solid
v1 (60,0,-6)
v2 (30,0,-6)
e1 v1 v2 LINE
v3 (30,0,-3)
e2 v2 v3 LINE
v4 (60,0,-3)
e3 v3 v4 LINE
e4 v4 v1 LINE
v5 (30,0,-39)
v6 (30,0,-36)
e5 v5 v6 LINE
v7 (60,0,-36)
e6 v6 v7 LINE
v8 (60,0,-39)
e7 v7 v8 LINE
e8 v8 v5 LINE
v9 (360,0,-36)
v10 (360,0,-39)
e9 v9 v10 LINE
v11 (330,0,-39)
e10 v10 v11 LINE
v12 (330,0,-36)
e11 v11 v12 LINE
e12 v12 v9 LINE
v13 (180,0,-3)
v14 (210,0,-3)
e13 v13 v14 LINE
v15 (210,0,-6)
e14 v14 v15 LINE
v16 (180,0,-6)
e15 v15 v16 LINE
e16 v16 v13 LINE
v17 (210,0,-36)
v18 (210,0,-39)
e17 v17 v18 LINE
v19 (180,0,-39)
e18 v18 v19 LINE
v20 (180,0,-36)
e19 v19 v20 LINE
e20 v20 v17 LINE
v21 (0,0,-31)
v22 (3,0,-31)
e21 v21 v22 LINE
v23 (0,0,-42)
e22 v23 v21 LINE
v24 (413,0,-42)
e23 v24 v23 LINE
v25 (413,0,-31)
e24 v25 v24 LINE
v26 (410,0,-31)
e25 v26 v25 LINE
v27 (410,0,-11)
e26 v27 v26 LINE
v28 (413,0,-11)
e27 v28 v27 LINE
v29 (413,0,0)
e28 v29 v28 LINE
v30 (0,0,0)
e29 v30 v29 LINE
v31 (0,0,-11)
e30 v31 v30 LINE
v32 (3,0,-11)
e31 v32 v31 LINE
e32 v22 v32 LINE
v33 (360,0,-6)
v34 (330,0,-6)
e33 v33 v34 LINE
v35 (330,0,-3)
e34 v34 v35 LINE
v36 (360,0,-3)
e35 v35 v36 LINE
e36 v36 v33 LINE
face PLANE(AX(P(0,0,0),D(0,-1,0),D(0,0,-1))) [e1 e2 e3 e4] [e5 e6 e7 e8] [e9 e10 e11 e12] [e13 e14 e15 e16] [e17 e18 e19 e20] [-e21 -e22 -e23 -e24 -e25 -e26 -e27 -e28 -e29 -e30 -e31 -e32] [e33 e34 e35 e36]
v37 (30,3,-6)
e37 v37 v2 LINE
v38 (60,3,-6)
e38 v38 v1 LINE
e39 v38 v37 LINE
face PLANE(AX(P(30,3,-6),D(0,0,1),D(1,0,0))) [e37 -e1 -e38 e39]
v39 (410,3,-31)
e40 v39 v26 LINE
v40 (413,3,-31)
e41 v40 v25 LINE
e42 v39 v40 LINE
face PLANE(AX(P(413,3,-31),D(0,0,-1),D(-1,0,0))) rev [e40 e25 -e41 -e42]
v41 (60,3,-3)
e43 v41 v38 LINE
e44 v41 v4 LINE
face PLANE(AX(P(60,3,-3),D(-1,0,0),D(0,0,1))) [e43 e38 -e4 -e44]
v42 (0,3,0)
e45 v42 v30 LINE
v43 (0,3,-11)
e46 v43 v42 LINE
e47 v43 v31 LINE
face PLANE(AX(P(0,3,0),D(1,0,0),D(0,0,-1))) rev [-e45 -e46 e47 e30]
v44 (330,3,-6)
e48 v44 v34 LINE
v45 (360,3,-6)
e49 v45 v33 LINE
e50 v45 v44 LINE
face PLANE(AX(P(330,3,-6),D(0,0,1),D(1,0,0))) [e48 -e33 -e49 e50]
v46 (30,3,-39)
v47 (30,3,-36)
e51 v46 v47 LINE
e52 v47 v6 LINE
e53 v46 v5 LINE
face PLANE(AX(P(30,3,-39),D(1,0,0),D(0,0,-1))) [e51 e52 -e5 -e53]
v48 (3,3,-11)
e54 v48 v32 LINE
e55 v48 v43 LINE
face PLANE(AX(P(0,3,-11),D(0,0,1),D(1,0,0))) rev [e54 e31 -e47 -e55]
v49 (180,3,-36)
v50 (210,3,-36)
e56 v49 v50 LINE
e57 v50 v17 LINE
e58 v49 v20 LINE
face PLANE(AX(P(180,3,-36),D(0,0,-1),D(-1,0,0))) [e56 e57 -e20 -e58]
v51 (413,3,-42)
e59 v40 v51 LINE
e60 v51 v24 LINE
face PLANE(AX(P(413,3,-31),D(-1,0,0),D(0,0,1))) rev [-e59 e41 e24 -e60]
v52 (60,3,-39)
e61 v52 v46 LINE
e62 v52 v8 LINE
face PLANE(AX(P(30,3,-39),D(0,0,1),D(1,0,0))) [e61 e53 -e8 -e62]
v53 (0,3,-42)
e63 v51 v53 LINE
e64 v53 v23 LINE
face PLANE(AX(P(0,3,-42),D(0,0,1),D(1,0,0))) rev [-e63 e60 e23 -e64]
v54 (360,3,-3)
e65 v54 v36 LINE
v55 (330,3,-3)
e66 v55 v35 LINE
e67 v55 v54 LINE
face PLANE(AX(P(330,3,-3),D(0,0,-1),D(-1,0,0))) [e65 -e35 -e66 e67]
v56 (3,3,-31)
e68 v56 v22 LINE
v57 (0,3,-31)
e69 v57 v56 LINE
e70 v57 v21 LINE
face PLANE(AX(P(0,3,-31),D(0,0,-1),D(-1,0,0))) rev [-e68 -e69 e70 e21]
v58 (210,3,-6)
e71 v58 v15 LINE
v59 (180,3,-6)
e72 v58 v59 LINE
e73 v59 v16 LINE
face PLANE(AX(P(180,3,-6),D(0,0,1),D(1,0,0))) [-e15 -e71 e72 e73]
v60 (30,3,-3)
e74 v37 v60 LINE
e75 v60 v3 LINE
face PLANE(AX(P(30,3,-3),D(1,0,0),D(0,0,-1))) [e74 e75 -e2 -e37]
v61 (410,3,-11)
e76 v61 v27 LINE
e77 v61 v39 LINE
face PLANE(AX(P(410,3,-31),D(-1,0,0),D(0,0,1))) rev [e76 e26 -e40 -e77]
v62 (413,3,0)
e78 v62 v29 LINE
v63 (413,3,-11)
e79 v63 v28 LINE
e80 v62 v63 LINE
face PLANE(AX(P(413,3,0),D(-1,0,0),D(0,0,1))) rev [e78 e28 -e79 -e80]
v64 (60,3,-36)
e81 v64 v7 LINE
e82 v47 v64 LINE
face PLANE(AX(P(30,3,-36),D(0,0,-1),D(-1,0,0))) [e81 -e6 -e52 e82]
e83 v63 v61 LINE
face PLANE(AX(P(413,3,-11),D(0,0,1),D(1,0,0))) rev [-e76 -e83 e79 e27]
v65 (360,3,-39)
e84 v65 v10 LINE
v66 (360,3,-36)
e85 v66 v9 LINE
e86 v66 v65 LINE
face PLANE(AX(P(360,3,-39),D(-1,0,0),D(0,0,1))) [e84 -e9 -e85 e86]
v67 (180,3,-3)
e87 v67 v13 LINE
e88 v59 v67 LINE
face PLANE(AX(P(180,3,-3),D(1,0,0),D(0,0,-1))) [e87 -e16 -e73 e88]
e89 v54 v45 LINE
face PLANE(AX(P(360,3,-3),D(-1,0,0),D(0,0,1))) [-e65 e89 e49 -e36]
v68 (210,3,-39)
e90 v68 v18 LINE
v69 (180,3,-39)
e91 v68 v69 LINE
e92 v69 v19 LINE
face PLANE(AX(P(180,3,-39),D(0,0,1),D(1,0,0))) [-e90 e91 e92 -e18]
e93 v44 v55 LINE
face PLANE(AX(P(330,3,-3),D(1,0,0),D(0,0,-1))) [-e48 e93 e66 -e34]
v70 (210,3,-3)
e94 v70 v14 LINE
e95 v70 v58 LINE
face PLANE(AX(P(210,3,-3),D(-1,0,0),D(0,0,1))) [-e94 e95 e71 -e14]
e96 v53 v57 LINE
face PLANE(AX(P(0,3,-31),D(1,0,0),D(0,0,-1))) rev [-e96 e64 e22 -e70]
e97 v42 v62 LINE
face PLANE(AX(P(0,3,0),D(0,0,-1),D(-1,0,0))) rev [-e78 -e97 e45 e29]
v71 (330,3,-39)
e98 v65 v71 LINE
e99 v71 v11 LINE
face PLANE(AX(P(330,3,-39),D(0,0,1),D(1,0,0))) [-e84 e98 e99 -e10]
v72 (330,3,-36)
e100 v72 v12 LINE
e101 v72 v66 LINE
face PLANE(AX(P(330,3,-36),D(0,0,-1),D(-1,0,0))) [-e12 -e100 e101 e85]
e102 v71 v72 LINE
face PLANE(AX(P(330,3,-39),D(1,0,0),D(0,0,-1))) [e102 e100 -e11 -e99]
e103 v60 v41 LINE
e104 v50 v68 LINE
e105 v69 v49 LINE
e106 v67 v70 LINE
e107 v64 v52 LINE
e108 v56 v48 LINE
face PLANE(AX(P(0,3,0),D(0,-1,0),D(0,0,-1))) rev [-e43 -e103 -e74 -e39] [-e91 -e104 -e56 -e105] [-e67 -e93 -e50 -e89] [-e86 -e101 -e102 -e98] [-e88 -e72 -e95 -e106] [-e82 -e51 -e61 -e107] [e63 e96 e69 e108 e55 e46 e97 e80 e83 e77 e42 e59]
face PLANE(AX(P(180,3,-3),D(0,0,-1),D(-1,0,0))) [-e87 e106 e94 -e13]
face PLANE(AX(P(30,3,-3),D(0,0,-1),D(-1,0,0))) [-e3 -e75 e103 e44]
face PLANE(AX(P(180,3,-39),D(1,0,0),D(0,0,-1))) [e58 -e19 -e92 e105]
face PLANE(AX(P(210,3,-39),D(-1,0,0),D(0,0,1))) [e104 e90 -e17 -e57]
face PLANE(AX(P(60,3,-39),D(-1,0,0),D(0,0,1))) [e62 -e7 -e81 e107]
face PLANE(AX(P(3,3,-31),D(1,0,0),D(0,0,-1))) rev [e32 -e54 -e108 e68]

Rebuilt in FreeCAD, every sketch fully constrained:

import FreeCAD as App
import Part
import Sketcher

V = App.Vector
Q = App.Units.Quantity


def add_polygon(sketch, points):
    """Adds a closed chain of lines whose ends are joined by coincident constraints."""
    first, n = sketch.GeometryCount, len(points)
    for a, b in zip(points, points[1:] + points[:1]):
        sketch.addGeometry(Part.LineSegment(App.Vector(*a, 0), App.Vector(*b, 0)), False)
    for i in range(n):
        sketch.addConstraint(Sketcher.Constraint("Coincident", first + i, 2, first + (i + 1) % n, 1))

doc = App.newDocument("Part")
body = doc.addObject("PartDesign::Body", "Body")

sketch1 = body.newObject("Sketcher::SketchObject", "Sketch")
sketch1.AttachmentSupport = (doc.getObject("XZ_Plane"), [""])
sketch1.MapMode = "FlatFace"
add_polygon(sketch1, [(0, 0), (413, 0), (413, -11), (410, -11), (410, -31), (413, -31), (413, -42), (0, -42), (0, -31), (3, -31), (3, -11), (0, -11)])
add_polygon(sketch1, [(60, -3), (30, -3), (30, -6), (60, -6)])
add_polygon(sketch1, [(210, -3), (180, -3), (180, -6), (210, -6)])
add_polygon(sketch1, [(360, -3), (330, -3), (330, -6), (360, -6)])
add_polygon(sketch1, [(60, -36), (30, -36), (30, -39), (60, -39)])
add_polygon(sketch1, [(210, -36), (180, -36), (180, -39), (210, -39)])
add_polygon(sketch1, [(360, -36), (330, -36), (330, -39), (360, -39)])
sketch1.addConstraint([
    Sketcher.Constraint("Horizontal", 0),
    Sketcher.Constraint("Vertical", 1),
    Sketcher.Constraint("Horizontal", 2),
    Sketcher.Constraint("Vertical", 3),
    Sketcher.Constraint("Horizontal", 4),
    Sketcher.Constraint("Vertical", 5),
    Sketcher.Constraint("Horizontal", 6),
    Sketcher.Constraint("Vertical", 7),
    Sketcher.Constraint("Horizontal", 8),
    Sketcher.Constraint("Vertical", 9),
    Sketcher.Constraint("Horizontal", 10),
    Sketcher.Constraint("Vertical", 11),
    Sketcher.Constraint("Horizontal", 12),
    Sketcher.Constraint("Vertical", 13),
    Sketcher.Constraint("Horizontal", 14),
    Sketcher.Constraint("Vertical", 15),
    Sketcher.Constraint("Horizontal", 16),
    Sketcher.Constraint("Vertical", 17),
    Sketcher.Constraint("Horizontal", 18),
    Sketcher.Constraint("Vertical", 19),
    Sketcher.Constraint("Horizontal", 20),
    Sketcher.Constraint("Vertical", 21),
    Sketcher.Constraint("Horizontal", 22),
    Sketcher.Constraint("Vertical", 23),
    Sketcher.Constraint("Horizontal", 24),
    Sketcher.Constraint("Vertical", 25),
    Sketcher.Constraint("Horizontal", 26),
    Sketcher.Constraint("Vertical", 27),
    Sketcher.Constraint("Horizontal", 28),
    Sketcher.Constraint("Vertical", 29),
    Sketcher.Constraint("Horizontal", 30),
    Sketcher.Constraint("Vertical", 31),
    Sketcher.Constraint("Horizontal", 32),
    Sketcher.Constraint("Vertical", 33),
    Sketcher.Constraint("Horizontal", 34),
    Sketcher.Constraint("Vertical", 35),
    Sketcher.Constraint("Coincident", 11, 2, -1, 1),
    Sketcher.Constraint("PointOnObject", 6, 2, -2),
    Sketcher.Constraint("Horizontal", 4, 2, 7, 2),
    Sketcher.Constraint("Horizontal", 2, 2, 9, 2),
    Sketcher.Constraint("Horizontal", 15, 2, 16, 2),
    Sketcher.Constraint("Horizontal", 14, 2, 17, 2),
    Sketcher.Constraint("Horizontal", 19, 2, 20, 2),
    Sketcher.Constraint("Horizontal", 18, 2, 21, 2),
    Sketcher.Constraint("Horizontal", 27, 2, 28, 2),
    Sketcher.Constraint("Horizontal", 26, 2, 29, 2),
    Sketcher.Constraint("Horizontal", 31, 2, 32, 2),
    Sketcher.Constraint("Horizontal", 30, 2, 33, 2),
    Sketcher.Constraint("Vertical", 1, 2, 4, 2),
    Sketcher.Constraint("Vertical", 13, 2, 24, 2),
    Sketcher.Constraint("Vertical", 15, 2, 26, 2),
    Sketcher.Constraint("Vertical", 17, 2, 28, 2),
    Sketcher.Constraint("Vertical", 19, 2, 30, 2),
    Sketcher.Constraint("Vertical", 21, 2, 32, 2),
    Sketcher.Constraint("Vertical", 23, 2, 34, 2),
    Sketcher.Constraint("Equal", 4, 8),
    Sketcher.Constraint("Equal", 14, 16),
    Sketcher.Constraint("Equal", 18, 20),
    Sketcher.Constraint("Equal", 1, 5),
    Sketcher.Constraint("Equal", 10, 13),
    Sketcher.Constraint("Equal", 23, 25),
    Sketcher.Constraint("DistanceX", 0, 1, 0, 2, Q("413 mm")),
    Sketcher.Constraint("DistanceX", 2, 2, 2, 1, Q("3 mm")),
    Sketcher.Constraint("DistanceX", 12, 2, 12, 1, Q("30 mm")),
    Sketcher.Constraint("DistanceY", 1, 2, 1, 1, Q("11 mm")),
    Sketcher.Constraint("DistanceY", 3, 2, 3, 1, Q("20 mm")),
    Sketcher.Constraint("DistanceX", -1, 1, 12, 2, Q("30 mm")),
    Sketcher.Constraint("DistanceY", 12, 2, -1, 1, Q("3 mm")),
    Sketcher.Constraint("DistanceX", -1, 1, 16, 2, Q("180 mm")),
    Sketcher.Constraint("DistanceX", -1, 1, 20, 2, Q("330 mm")),
    Sketcher.Constraint("DistanceY", 24, 2, -1, 1, Q("36 mm")),
])
pad1 = body.newObject("PartDesign::Pad", "Pad")
pad1.Profile = sketch1
pad1.Length = 3
pad1.Reversed = True

doc.recompute()
